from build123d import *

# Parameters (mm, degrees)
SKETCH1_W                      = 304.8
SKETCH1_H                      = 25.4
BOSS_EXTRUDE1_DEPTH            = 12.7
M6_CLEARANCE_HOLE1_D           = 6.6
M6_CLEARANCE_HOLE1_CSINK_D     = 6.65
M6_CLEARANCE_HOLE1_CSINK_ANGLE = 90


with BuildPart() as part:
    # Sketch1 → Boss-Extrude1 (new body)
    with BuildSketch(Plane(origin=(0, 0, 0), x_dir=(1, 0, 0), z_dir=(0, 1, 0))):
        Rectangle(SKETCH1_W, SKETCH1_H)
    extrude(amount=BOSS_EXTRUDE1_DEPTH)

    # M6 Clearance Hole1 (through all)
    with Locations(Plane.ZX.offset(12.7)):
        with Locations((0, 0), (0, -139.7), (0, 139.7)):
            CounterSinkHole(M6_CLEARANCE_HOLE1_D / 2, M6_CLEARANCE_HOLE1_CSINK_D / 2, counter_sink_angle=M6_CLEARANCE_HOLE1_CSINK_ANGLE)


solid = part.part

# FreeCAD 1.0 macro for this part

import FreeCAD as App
import Part
import Sketcher

V = App.Vector
Q = App.Units.Quantity


def add_polygon(sketch, points):
    """Adds a closed chain of lines whose ends are joined by coincident constraints."""
    first, n = sketch.GeometryCount, len(points)
    for a, b in zip(points, points[1:] + points[:1]):
        sketch.addGeometry(Part.LineSegment(App.Vector(*a, 0), App.Vector(*b, 0)), False)
    for i in range(n):
        sketch.addConstraint(Sketcher.Constraint("Coincident", first + i, 2, first + (i + 1) % n, 1))

doc = App.newDocument("Part")
body = doc.addObject("PartDesign::Body", "Body")

# Sketch on XZ plane
sketch1 = body.newObject("Sketcher::SketchObject", "Sketch")
sketch1.AttachmentSupport = (doc.getObject("XZ_Plane"), [""])
sketch1.MapMode = "FlatFace"
add_polygon(sketch1, [(-152, -13), (-152, 13), (152, 13), (152, -13)])  # lines 0-3
sketch1.addConstraint([
    Sketcher.Constraint("Vertical", 0),
    Sketcher.Constraint("Horizontal", 1),
    Sketcher.Constraint("Vertical", 2),
    Sketcher.Constraint("Horizontal", 3),
    Sketcher.Constraint("Symmetric", 0, 2, 2, 2, -1, 1),
    Sketcher.Constraint("DistanceX", 1, 1, 1, 2, Q("12 in")),
    Sketcher.Constraint("DistanceY", 0, 1, 0, 2, Q("1 in")),
])
pad1 = body.newObject("PartDesign::Pad", "Pad")
pad1.Profile = sketch1
pad1.Length = Q("0.5 in")
pad1.Reversed = True

# Sketch on XZ plane
sketch2 = body.newObject("Sketcher::SketchObject", "Sketch001")
sketch2.AttachmentSupport = (doc.getObject("XZ_Plane"), [""])
sketch2.MapMode = "FlatFace"
sketch2.AttachmentOffset = App.Placement(V(0, 0, -0.5 * 25.4), App.Rotation())
sketch2.addGeometry([
    Part.Circle(V(0, 0, 0), V(0, 0, 1), 3.3),
    Part.Circle(V(-139.7, 0, 0), V(0, 0, 1), 3.3),
    Part.Circle(V(139.7, 0, 0), V(0, 0, 1), 3.3),
], False)
sketch2.addConstraint([
    Sketcher.Constraint("Coincident", 0, 3, -1, 1),
    Sketcher.Constraint("Equal", 0, 1),
    Sketcher.Constraint("Equal", 1, 2),
    Sketcher.Constraint("Symmetric", 1, 3, 2, 3, -1, 1),
    Sketcher.Constraint("PointOnObject", 1, 3, -1),
    Sketcher.Constraint("DistanceX", 1, 3, 2, 3, Q("11 in")),
    Sketcher.Constraint("Diameter", 0, Q("6.6 mm")),
])
doc.recompute()
hole = body.newObject("PartDesign::Hole", "Hole")
hole.Profile = sketch2
hole.ThreadType = "None"
hole.Diameter = 6.6
hole.DepthType = "ThroughAll"
hole.HoleCutType = "Countersink"
hole.HoleCutDiameter = 6.65
hole.HoleCutCountersinkAngle = 90
hole.Reversed = True

doc.recompute()
